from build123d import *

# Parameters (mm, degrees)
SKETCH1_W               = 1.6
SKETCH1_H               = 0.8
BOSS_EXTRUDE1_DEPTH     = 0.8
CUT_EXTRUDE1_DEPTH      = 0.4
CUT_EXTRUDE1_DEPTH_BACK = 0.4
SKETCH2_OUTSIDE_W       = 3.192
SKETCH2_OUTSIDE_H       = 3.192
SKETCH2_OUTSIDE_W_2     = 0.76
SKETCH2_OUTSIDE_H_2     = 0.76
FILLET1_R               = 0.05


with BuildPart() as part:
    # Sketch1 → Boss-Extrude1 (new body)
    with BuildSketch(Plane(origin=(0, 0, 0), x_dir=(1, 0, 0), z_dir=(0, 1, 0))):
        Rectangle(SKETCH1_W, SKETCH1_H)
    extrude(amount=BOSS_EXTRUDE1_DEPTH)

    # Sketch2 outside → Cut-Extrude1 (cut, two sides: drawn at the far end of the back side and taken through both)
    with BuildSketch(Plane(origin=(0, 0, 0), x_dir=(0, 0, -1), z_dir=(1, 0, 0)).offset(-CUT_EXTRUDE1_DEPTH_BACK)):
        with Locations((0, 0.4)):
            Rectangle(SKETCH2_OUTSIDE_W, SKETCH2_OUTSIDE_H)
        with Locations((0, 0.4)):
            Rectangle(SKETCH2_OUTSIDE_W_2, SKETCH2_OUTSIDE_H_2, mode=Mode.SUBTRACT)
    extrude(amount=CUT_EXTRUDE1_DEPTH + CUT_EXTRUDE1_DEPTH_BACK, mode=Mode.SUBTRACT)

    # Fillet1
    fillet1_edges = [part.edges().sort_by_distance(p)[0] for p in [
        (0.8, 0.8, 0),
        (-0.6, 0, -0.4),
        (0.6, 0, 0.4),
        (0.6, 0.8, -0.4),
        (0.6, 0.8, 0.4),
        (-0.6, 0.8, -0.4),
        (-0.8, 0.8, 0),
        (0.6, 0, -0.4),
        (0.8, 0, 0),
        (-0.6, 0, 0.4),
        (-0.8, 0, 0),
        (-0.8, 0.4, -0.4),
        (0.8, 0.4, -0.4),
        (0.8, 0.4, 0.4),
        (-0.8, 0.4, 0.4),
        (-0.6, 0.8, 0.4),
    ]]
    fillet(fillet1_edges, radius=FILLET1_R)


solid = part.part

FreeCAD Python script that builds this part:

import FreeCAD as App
import Part
import Sketcher

V = App.Vector
Q = App.Units.Quantity


def edges_at(feature, points):
    """Names of the edges that pass closest to the given points."""
    edges = feature.Shape.Edges
    near = lambda p: min(range(len(edges)), key=lambda i: edges[i].distToShape(Part.Vertex(*p))[0])
    return sorted({f"Edge{near(p) + 1}" for p in points})

doc = App.newDocument("Part")
body = doc.addObject("PartDesign::Body", "Body")

sketch1 = body.newObject("Sketcher::SketchObject", "Sketch")
sketch1.AttachmentSupport = (doc.getObject("XZ_Plane"), [""])
sketch1.MapMode = "FlatFace"
sketch1.addGeometry(Part.LineSegment(V(-0.8, -0.4, 0), V(-0.8, 0.4, 0)), False)
sketch1.addGeometry(Part.LineSegment(V(-0.8, 0.4, 0), V(0.8, 0.4, 0)), False)
sketch1.addGeometry(Part.LineSegment(V(0.8, 0.4, 0), V(0.8, -0.4, 0)), False)
sketch1.addGeometry(Part.LineSegment(V(0.8, -0.4, 0), V(-0.8, -0.4, 0)), False)
sketch1.addConstraint(Sketcher.Constraint("Coincident", 0, 2, 1, 1))
sketch1.addConstraint(Sketcher.Constraint("Coincident", 1, 2, 2, 1))
sketch1.addConstraint(Sketcher.Constraint("Coincident", 2, 2, 3, 1))
sketch1.addConstraint(Sketcher.Constraint("Coincident", 3, 2, 0, 1))
sketch1.addConstraint(Sketcher.Constraint("Vertical", 0))
sketch1.addConstraint(Sketcher.Constraint("Horizontal", 1))
sketch1.addConstraint(Sketcher.Constraint("Vertical", 2))
sketch1.addConstraint(Sketcher.Constraint("Horizontal", 3))
sketch1.addConstraint(Sketcher.Constraint("Symmetric", 0, 2, 2, 2, -1, 1))
sketch1.addConstraint(Sketcher.Constraint("DistanceX", 1, 1, 1, 2, Q("1.6 mm")))
sketch1.addConstraint(Sketcher.Constraint("DistanceY", 0, 1, 0, 2, Q("0.8 mm")))
pad1 = body.newObject("PartDesign::Pad", "Pad")
pad1.Profile = sketch1
pad1.Length = 0.8
pad1.Reversed = True

sketch2 = body.newObject("Sketcher::SketchObject", "Sketch001")
sketch2.AttachmentSupport = (doc.getObject("YZ_Plane"), [""])
sketch2.MapMode = "FlatFace"
sketch2.addGeometry(Part.LineSegment(V(2, 1.6, 0), V(-1.2, 1.6, 0)), False)
sketch2.addGeometry(Part.LineSegment(V(-1.2, 1.6, 0), V(-1.2, -1.6, 0)), False)
sketch2.addGeometry(Part.LineSegment(V(-1.2, -1.6, 0), V(2, -1.6, 0)), False)
sketch2.addGeometry(Part.LineSegment(V(2, -1.6, 0), V(2, 1.6, 0)), False)
sketch2.addGeometry(Part.LineSegment(V(0, -0.4, 0), V(0, 0.4, 0)), False)
sketch2.addGeometry(Part.LineSegment(V(0, 0.4, 0), V(0.8, 0.4, 0)), False)
sketch2.addGeometry(Part.LineSegment(V(0.8, 0.4, 0), V(0.8, -0.4, 0)), False)
sketch2.addGeometry(Part.LineSegment(V(0.8, -0.4, 0), V(0, -0.4, 0)), False)
sketch2.addConstraint(Sketcher.Constraint("Coincident", 0, 2, 1, 1))
sketch2.addConstraint(Sketcher.Constraint("Coincident", 1, 2, 2, 1))
sketch2.addConstraint(Sketcher.Constraint("Coincident", 2, 2, 3, 1))
sketch2.addConstraint(Sketcher.Constraint("Coincident", 3, 2, 0, 1))
sketch2.addConstraint(Sketcher.Constraint("Coincident", 4, 2, 5, 1))
sketch2.addConstraint(Sketcher.Constraint("Coincident", 5, 2, 6, 1))
sketch2.addConstraint(Sketcher.Constraint("Coincident", 6, 2, 7, 1))
sketch2.addConstraint(Sketcher.Constraint("Coincident", 7, 2, 4, 1))
sketch2.addConstraint(Sketcher.Constraint("Horizontal", 0))
sketch2.addConstraint(Sketcher.Constraint("Vertical", 1))
sketch2.addConstraint(Sketcher.Constraint("Horizontal", 2))
sketch2.addConstraint(Sketcher.Constraint("Vertical", 3))
sketch2.addConstraint(Sketcher.Constraint("Vertical", 4))
sketch2.addConstraint(Sketcher.Constraint("Horizontal", 5))
sketch2.addConstraint(Sketcher.Constraint("Vertical", 6))
sketch2.addConstraint(Sketcher.Constraint("Horizontal", 7))
sketch2.addConstraint(Sketcher.Constraint("Equal", 2, 1))
sketch2.addConstraint(Sketcher.Constraint("Equal", 7, 4))
sketch2.addConstraint(Sketcher.Constraint("DistanceX", 5, 1, 5, 2, Q("0.76 mm")))
sketch2.addConstraint(Sketcher.Constraint("DistanceX", 0, 2, 0, 1, Q("3.192 mm")))
sketch2.addConstraint(Sketcher.Constraint("DistanceX", -1, 1, 4, 2, Q("0.02 mm")))
sketch2.addConstraint(Sketcher.Constraint("DistanceY", -1, 1, 4, 2, Q("0.38 mm")))
sketch2.addConstraint(Sketcher.Constraint("DistanceX", 0, 2, -1, 1, Q("1.196 mm")))
sketch2.addConstraint(Sketcher.Constraint("DistanceY", -1, 1, 0, 2, Q("1.596 mm")))
pocket1 = body.newObject("PartDesign::Pocket", "Pocket")
pocket1.Profile = sketch2
pocket1.Type = "TwoLengths"
pocket1.Length = 0.4
pocket1.Length2 = 0.4
pocket1.Reversed = True
doc.recompute()

fillet = body.newObject("PartDesign::Fillet", "Fillet")
fillet.Base = (pocket1, edges_at(pocket1, [
    (0.8, 0.8, 0),
    (-0.6, 0, -0.4),
    (0.6, 0, 0.4),
    (0.6, 0.8, -0.4),
    (0.6, 0.8, 0.4),
    (-0.6, 0.8, -0.4),
    (-0.8, 0.8, 0),
    (0.6, 0, -0.4),
    (0.8, 0, 0),
    (-0.6, 0, 0.4),
    (-0.8, 0, 0),
    (-0.8, 0.4, -0.4),
    (0.8, 0.4, -0.4),
    (0.8, 0.4, 0.4),
    (-0.8, 0.4, 0.4),
    (-0.6, 0.8, 0.4),
]))
fillet.Radius = 0.05

doc.recompute()
